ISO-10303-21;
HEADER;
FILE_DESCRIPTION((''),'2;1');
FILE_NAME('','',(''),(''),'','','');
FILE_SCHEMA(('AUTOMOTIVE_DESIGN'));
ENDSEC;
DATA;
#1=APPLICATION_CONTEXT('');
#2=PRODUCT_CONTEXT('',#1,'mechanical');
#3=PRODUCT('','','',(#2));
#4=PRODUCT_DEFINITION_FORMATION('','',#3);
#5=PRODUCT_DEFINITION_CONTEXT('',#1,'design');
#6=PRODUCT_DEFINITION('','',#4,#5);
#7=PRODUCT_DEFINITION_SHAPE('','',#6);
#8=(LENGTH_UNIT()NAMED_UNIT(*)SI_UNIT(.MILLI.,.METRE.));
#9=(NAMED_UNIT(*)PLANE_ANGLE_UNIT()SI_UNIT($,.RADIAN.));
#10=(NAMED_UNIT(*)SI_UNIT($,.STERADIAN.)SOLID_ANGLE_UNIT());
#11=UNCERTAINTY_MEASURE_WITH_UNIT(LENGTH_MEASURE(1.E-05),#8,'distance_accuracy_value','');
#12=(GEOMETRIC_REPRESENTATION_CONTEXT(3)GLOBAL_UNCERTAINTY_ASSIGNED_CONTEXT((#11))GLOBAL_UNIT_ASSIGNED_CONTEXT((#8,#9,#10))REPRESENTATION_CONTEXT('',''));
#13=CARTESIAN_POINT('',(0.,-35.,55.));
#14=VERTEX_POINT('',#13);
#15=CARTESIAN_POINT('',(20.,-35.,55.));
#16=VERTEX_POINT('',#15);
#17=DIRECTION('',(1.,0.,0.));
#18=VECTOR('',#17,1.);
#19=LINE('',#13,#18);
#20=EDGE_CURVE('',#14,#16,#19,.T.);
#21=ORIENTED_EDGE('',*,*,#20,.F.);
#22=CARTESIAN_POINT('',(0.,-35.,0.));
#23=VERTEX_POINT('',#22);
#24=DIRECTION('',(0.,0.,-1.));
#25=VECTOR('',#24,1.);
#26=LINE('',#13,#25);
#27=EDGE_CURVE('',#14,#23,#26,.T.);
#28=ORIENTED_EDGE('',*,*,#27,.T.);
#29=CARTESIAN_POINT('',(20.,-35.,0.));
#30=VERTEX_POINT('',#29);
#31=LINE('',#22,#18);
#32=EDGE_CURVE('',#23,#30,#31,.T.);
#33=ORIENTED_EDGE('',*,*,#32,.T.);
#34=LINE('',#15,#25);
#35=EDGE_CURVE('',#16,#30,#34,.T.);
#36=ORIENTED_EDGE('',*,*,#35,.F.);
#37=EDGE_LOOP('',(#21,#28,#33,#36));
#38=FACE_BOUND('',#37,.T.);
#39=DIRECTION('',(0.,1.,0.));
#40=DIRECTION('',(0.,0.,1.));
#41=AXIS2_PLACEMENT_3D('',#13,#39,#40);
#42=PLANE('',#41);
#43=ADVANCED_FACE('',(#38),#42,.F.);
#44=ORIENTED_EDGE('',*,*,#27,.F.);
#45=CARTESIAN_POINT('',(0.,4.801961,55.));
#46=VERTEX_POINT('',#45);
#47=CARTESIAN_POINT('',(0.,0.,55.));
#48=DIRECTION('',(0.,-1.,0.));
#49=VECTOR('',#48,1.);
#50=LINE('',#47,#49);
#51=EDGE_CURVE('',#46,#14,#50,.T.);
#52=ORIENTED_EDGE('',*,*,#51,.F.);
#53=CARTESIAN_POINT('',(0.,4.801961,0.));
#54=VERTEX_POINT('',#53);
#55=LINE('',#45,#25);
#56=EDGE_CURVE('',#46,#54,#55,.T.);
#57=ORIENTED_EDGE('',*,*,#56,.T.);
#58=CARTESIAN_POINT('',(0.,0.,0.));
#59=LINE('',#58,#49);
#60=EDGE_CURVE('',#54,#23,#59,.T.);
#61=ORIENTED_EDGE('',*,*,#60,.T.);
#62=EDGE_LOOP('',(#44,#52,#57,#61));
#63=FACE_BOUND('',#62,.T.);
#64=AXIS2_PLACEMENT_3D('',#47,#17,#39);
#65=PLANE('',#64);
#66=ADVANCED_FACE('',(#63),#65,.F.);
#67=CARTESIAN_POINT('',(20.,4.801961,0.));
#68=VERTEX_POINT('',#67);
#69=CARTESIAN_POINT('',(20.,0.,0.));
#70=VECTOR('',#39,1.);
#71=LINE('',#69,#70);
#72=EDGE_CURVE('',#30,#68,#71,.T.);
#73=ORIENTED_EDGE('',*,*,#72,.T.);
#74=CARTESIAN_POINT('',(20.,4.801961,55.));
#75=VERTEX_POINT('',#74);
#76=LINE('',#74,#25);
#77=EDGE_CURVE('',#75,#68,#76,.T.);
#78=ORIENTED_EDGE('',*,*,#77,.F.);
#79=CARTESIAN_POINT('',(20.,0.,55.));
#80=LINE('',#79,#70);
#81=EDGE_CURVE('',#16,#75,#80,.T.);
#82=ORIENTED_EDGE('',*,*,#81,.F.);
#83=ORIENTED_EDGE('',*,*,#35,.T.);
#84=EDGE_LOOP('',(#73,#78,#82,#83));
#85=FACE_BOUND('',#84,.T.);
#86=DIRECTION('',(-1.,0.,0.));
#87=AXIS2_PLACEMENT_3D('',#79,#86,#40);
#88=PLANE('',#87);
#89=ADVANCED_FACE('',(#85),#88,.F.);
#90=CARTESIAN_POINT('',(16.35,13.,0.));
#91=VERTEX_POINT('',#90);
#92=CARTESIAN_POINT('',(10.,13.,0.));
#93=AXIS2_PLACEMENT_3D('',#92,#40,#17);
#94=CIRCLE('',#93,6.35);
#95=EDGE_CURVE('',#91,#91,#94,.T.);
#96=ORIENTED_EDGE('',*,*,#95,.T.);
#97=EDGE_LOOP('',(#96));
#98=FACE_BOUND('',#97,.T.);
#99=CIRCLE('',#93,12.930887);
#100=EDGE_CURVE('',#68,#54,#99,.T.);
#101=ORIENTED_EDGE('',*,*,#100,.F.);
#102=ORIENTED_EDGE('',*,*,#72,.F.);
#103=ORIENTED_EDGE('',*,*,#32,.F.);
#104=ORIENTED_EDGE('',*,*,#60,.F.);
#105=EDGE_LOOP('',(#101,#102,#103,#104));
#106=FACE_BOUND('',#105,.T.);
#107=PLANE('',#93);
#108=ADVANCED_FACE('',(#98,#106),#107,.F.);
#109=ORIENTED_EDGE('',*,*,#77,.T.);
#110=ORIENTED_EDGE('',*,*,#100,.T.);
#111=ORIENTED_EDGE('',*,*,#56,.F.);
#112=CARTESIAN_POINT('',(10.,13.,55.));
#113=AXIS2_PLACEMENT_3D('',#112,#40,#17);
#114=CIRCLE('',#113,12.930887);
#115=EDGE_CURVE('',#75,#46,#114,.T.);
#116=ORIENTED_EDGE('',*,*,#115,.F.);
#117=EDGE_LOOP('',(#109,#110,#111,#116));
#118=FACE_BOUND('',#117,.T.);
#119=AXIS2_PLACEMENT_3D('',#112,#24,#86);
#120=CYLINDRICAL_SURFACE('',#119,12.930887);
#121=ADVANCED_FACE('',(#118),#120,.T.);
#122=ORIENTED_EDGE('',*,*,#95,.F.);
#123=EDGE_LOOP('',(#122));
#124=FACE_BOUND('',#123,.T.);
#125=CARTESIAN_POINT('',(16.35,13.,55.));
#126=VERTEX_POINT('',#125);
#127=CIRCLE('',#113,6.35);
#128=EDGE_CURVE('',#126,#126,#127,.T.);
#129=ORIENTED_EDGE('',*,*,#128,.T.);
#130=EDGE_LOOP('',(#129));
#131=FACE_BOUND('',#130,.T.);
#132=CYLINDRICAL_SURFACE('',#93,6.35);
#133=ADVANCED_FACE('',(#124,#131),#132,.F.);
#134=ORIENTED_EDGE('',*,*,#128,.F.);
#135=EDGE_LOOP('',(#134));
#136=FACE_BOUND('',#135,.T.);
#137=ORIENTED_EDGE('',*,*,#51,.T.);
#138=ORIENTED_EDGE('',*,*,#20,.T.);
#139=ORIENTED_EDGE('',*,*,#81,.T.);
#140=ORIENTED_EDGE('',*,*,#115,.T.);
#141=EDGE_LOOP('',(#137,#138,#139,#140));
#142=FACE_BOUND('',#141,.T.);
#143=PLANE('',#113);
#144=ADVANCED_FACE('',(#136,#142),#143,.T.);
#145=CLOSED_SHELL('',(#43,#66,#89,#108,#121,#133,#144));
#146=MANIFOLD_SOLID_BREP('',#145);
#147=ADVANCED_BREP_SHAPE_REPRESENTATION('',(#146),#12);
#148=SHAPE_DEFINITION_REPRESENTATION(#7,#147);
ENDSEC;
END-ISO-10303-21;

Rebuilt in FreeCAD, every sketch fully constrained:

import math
import FreeCAD as App
import Part
import Sketcher

V = App.Vector
Q = App.Units.Quantity

doc = App.newDocument("Part")
params = doc.addObject("Spreadsheet::Sheet", "Params")
for row, (alias, value) in enumerate([
    ("sketch1_width", "20 mm"),
    ("pad1_length", "55 mm"),
    ("sketch2_diameter", "12.7 mm"),
    ("pocket1_length", "55 mm"),
], start=1):
    params.set(f"A{row}", alias)
    params.set(f"B{row}", "=" + value)
    params.setAlias(f"B{row}", alias)

body = doc.addObject("PartDesign::Body", "Body")

sketch1 = doc.addObject("Sketcher::SketchObject", "Sketch")
body.addObject(sketch1)
sketch1.AttachmentSupport = (doc.XY_Plane, [""])
sketch1.MapMode = "FlatFace"
sketch1.addGeometry(Part.LineSegment(V(0, -35, 0), V(20, -35, 0)), False)
sketch1.addGeometry(Part.LineSegment(V(20, -35, 0), V(20, 5, 0)), False)
sketch1.addGeometry(Part.ArcOfCircle(Part.Circle(V(10, 13, 0), V(0, 0, 1), 13), math.radians(-39), math.radians(219)), False)
sketch1.addGeometry(Part.LineSegment(V(0, 5, 0), V(0, -35, 0)), False)
sketch1.addConstraint(Sketcher.Constraint("Coincident", 0, 2, 1, 1))
sketch1.addConstraint(Sketcher.Constraint("Coincident", 1, 2, 2, 1))
sketch1.addConstraint(Sketcher.Constraint("Coincident", 2, 2, 3, 1))
sketch1.addConstraint(Sketcher.Constraint("Coincident", 3, 2, 0, 1))
sketch1.addConstraint(Sketcher.Constraint("Horizontal", 0))
sketch1.addConstraint(Sketcher.Constraint("Vertical", 1))
sketch1.addConstraint(Sketcher.Constraint("Vertical", 3))
sketch1.addConstraint(Sketcher.Constraint("PointOnObject", 2, 2, -2))
sketch1.addConstraint(Sketcher.Constraint("Horizontal", 1, 2, 2, 2))
sketch1.addConstraint(Sketcher.Constraint("DistanceX", 0, 1, 0, 2, Q("20 mm")))
sketch1.addConstraint(Sketcher.Constraint("DistanceY", -1, 1, 2, 3, Q("13 mm")))
sketch1.addConstraint(Sketcher.Constraint("DistanceY", 0, 2, -1, 1, Q("35 mm")))
sketch1.addConstraint(Sketcher.Constraint("Radius", 2, Q("12.930887 mm")))
sketch1.setExpression("Constraints[9]", "Params.sketch1_width")
pad1 = doc.addObject("PartDesign::Pad", "Pad")
body.addObject(pad1)
pad1.Profile = sketch1
pad1.setExpression("Length", "Params.pad1_length")

sketch2 = doc.addObject("Sketcher::SketchObject", "Sketch001")
body.addObject(sketch2)
sketch2.AttachmentSupport = (doc.XY_Plane, [""])
sketch2.MapMode = "FlatFace"
sketch2.AttachmentOffset = App.Placement(V(0, 0, 55), App.Rotation())
sketch2.addGeometry(Part.Circle(V(10, 13, 0), V(0, 0, 1), 6), False)
sketch2.addConstraint(Sketcher.Constraint("Diameter", 0, Q("12.7 mm")))
sketch2.addConstraint(Sketcher.Constraint("DistanceX", -1, 1, 0, 3, Q("10 mm")))
sketch2.addConstraint(Sketcher.Constraint("DistanceY", -1, 1, 0, 3, Q("13 mm")))
sketch2.setExpression("Constraints[0]", "Params.sketch2_diameter")
pocket1 = doc.addObject("PartDesign::Pocket", "Pocket")
body.addObject(pocket1)
pocket1.Profile = sketch2
pocket1.setExpression("Length", "Params.pocket1_length")

doc.recompute()
